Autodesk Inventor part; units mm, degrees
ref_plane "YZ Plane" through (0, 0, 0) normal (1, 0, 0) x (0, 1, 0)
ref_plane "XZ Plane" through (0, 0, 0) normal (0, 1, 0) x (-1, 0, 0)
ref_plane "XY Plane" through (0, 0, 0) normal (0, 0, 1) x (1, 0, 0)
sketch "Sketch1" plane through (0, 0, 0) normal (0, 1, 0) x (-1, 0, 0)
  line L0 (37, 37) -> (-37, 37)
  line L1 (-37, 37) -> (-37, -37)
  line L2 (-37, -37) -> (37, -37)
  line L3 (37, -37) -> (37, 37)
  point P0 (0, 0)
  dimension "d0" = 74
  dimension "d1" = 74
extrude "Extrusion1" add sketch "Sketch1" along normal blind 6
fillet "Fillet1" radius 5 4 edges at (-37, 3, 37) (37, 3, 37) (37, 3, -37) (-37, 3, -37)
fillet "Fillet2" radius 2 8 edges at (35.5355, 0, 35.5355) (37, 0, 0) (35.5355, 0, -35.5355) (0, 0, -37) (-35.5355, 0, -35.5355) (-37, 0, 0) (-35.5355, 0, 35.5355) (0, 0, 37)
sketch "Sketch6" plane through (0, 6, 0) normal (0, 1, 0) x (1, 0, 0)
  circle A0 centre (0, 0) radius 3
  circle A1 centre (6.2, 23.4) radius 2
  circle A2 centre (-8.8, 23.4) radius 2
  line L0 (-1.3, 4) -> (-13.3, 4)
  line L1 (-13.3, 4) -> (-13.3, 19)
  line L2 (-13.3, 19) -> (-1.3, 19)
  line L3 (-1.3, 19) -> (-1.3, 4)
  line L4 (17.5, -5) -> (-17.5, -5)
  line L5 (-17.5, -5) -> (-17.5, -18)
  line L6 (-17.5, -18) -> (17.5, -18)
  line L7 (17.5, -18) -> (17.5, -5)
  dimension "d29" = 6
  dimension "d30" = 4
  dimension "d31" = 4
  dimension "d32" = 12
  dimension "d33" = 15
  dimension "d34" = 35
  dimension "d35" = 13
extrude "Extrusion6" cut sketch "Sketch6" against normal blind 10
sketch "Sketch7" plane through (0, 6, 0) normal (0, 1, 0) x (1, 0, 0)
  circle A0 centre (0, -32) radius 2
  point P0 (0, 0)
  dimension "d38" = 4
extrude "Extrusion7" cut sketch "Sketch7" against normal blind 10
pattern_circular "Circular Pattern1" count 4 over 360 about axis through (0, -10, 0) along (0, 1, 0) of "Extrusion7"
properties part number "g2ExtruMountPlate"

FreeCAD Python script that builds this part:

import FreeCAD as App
import Part
import Sketcher
from FreeCAD import Vector


def edges_at(feature, points):
    """Names of the edges that pass closest to the given points."""
    edges = feature.Shape.Edges
    near = lambda p: min(range(len(edges)), key=lambda i: edges[i].distToShape(Part.Vertex(*p))[0])
    return sorted({f"Edge{near(p) + 1}" for p in points})


def add_polygon(sketch, points):
    """Adds a closed chain of lines whose ends are joined by coincident constraints."""
    first, n = sketch.GeometryCount, len(points)
    for a, b in zip(points, points[1:] + points[:1]):
        sketch.addGeometry(Part.LineSegment(App.Vector(*a, 0), App.Vector(*b, 0)), False)
    for i in range(n):
        sketch.addConstraint(Sketcher.Constraint("Coincident", first + i, 2, first + (i + 1) % n, 1))

doc = App.newDocument("Part")
body = doc.addObject("PartDesign::Body", "Body")

sketch1 = body.newObject("Sketcher::SketchObject", "Sketch")
sketch1.AttachmentSupport = (doc.getObject("XZ_Plane"), [""])
sketch1.MapMode = "FlatFace"
add_polygon(sketch1, [(-37, -37), (-37, 37), (37, 37), (37, -37)])
sketch1.addConstraint([
    Sketcher.Constraint("Vertical", 0),
    Sketcher.Constraint("Horizontal", 1),
    Sketcher.Constraint("Vertical", 2),
    Sketcher.Constraint("Horizontal", 3),
    Sketcher.Constraint("Symmetric", 0, 2, 2, 2, -1, 1),
    Sketcher.Constraint("Equal", 3, 0),
    Sketcher.Constraint("DistanceX", 1, 1, 1, 2, 74.0),
])
pad1 = body.newObject("PartDesign::Pad", "Pad")
pad1.Profile = sketch1
pad1.Length = 6
pad1.Reversed = True
doc.recompute()

fillet = body.newObject("PartDesign::Fillet", "Fillet")
fillet.Base = (pad1, edges_at(pad1, [
    (-37, 3, 37),
    (37, 3, 37),
    (37, 3, -37),
    (-37, 3, -37),
]))
fillet.Radius = 5
doc.recompute()

fillet2 = body.newObject("PartDesign::Fillet", "Fillet001")
fillet2.Base = (fillet, edges_at(fillet, [
    (35.535, 0, 35.535),
    (37, 0, 0),
    (35.535, 0, -35.535),
    (0, 0, -37),
    (-35.535, 0, -35.535),
    (-37, 0, 0),
    (-35.535, 0, 35.535),
    (0, 0, 37),
]))
fillet2.Radius = 2

sketch2 = body.newObject("Sketcher::SketchObject", "Sketch001")
sketch2.AttachmentSupport = (doc.getObject("XZ_Plane"), [""])
sketch2.MapMode = "FlatFace"
sketch2.AttachmentOffset = App.Placement(Vector(0, 0, -6), App.Rotation())
sketch2.addGeometry(Part.Circle(Vector(0, 0, 0), Vector(0, 0, 1), 3), False)
sketch2.addGeometry(Part.Circle(Vector(6.2, -23.4, 0), Vector(0, 0, 1), 2), False)
sketch2.addGeometry(Part.Circle(Vector(-8.8, -23.4, 0), Vector(0, 0, 1), 2), False)
add_polygon(sketch2, [(-13.3, -4), (-1.3, -4), (-1.3, -19), (-13.3, -19)])
add_polygon(sketch2, [(17.5, 18), (17.5, 5), (-17.5, 5), (-17.5, 18)])
sketch2.addConstraint([
    Sketcher.Constraint("Horizontal", 3),
    Sketcher.Constraint("Vertical", 4),
    Sketcher.Constraint("Horizontal", 5),
    Sketcher.Constraint("Vertical", 6),
    Sketcher.Constraint("Vertical", 7),
    Sketcher.Constraint("Horizontal", 8),
    Sketcher.Constraint("Vertical", 9),
    Sketcher.Constraint("Horizontal", 10),
    Sketcher.Constraint("Coincident", 0, 3, -1, 1),
    Sketcher.Constraint("Equal", 1, 2),
    Sketcher.Constraint("Horizontal", 1, 3, 2, 3),
    Sketcher.Constraint("Diameter", 0, 6.0),
    Sketcher.Constraint("Diameter", 1, 4.0),
    Sketcher.Constraint("DistanceX", 3, 1, 3, 2, 12.0),
    Sketcher.Constraint("DistanceX", 8, 2, 8, 1, 35.0),
    Sketcher.Constraint("DistanceY", 4, 2, 4, 1, 15.0),
    Sketcher.Constraint("DistanceY", 7, 2, 7, 1, 13.0),
    Sketcher.Constraint("DistanceY", 3, 2, -1, 1, 4.0),
    Sketcher.Constraint("DistanceX", 2, 3, 1, 3, 15.0),
    Sketcher.Constraint("DistanceY", -1, 1, 7, 2, 5.0),
    Sketcher.Constraint("DistanceX", -1, 1, 1, 3, 6.2),
    Sketcher.Constraint("DistanceY", 1, 3, -1, 1, 23.4),
    Sketcher.Constraint("DistanceX", 3, 2, -1, 1, 1.3),
    Sketcher.Constraint("DistanceX", -1, 1, 7, 2, 17.5),
])
pocket1 = body.newObject("PartDesign::Pocket", "Pocket")
pocket1.Profile = sketch2
pocket1.Length = 10
pocket1.Reversed = True

sketch3 = body.newObject("Sketcher::SketchObject", "Sketch002")
sketch3.AttachmentSupport = (doc.getObject("XZ_Plane"), [""])
sketch3.MapMode = "FlatFace"
sketch3.AttachmentOffset = App.Placement(Vector(0, 0, -6), App.Rotation())
sketch3.addGeometry(Part.Circle(Vector(0, 32, 0), Vector(0, 0, 1), 2), False)
sketch3.addConstraint([
    Sketcher.Constraint("PointOnObject", 0, 3, -2),
    Sketcher.Constraint("Diameter", 0, 4.0),
    Sketcher.Constraint("DistanceY", -1, 1, 0, 3, 32.0),
])
pocket2 = body.newObject("PartDesign::Pocket", "Pocket001")
pocket2.Profile = sketch3
pocket2.Length = 10
pocket2.Reversed = True
doc.recompute()

polarpattern = body.newObject("PartDesign::PolarPattern", "PolarPattern")
polarpattern.Originals = [pocket2]
polarpattern.Axis = (doc.getObject("Y_Axis"), [""])
polarpattern.Angle = 360
polarpattern.Occurrences = 4
body.Tip = polarpattern

doc.recompute()
